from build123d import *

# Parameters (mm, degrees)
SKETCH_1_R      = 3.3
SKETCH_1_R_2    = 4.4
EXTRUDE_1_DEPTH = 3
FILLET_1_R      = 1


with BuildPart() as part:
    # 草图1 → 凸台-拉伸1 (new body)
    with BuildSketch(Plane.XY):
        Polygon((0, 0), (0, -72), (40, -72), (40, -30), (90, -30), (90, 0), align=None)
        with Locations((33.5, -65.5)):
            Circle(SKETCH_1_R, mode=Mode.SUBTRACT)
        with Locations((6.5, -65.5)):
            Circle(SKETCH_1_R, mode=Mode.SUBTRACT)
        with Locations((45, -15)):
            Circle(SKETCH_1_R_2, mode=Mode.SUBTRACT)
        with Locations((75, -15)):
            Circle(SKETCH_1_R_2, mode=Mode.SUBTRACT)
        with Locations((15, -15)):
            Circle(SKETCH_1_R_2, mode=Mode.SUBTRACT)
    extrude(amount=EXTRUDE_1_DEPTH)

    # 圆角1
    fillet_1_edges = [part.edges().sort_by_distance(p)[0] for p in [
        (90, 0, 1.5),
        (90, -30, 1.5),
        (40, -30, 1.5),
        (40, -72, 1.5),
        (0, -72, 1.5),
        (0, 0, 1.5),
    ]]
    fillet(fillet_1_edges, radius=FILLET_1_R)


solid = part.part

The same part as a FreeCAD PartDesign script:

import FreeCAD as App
import Part
import Sketcher

V = App.Vector


def edges_at(feature, points):
    """Names of the edges that pass closest to the given points."""
    edges = feature.Shape.Edges
    near = lambda p: min(range(len(edges)), key=lambda i: edges[i].distToShape(Part.Vertex(*p))[0])
    return sorted({f"Edge{near(p) + 1}" for p in points})

doc = App.newDocument("Part")
body = doc.addObject("PartDesign::Body", "Body")

sketch1 = body.newObject("Sketcher::SketchObject", "Sketch")
sketch1.AttachmentSupport = (doc.getObject("XY_Plane"), [""])
sketch1.MapMode = "FlatFace"
sketch1.addGeometry([
    Part.LineSegment(V(0, 0, 0), V(0, -72, 0)),
    Part.LineSegment(V(0, -72, 0), V(40, -72, 0)),
    Part.LineSegment(V(40, -72, 0), V(40, -30, 0)),
    Part.LineSegment(V(40, -30, 0), V(90, -30, 0)),
    Part.LineSegment(V(90, -30, 0), V(90, 0, 0)),
    Part.LineSegment(V(90, 0, 0), V(0, 0, 0)),
    Part.Circle(V(6.5, -65.5, 0), V(0, 0, 1), 3.3),
    Part.Circle(V(33.5, -65.5, 0), V(0, 0, 1), 3.3),
    Part.Circle(V(15, -15, 0), V(0, 0, 1), 4.4),
    Part.Circle(V(45, -15, 0), V(0, 0, 1), 4.4),
    Part.Circle(V(75, -15, 0), V(0, 0, 1), 4.4),
], False)
sketch1.addConstraint([
    Sketcher.Constraint("Coincident", 0, 2, 1, 1),
    Sketcher.Constraint("Coincident", 1, 2, 2, 1),
    Sketcher.Constraint("Coincident", 2, 2, 3, 1),
    Sketcher.Constraint("Coincident", 3, 2, 4, 1),
    Sketcher.Constraint("Coincident", 4, 2, 5, 1),
    Sketcher.Constraint("Coincident", 5, 2, 0, 1),
    Sketcher.Constraint("Vertical", 0),
    Sketcher.Constraint("Horizontal", 1),
    Sketcher.Constraint("Vertical", 2),
    Sketcher.Constraint("Horizontal", 3),
    Sketcher.Constraint("Vertical", 4),
    Sketcher.Constraint("Horizontal", 5),
    Sketcher.Constraint("Coincident", 5, 2, -1, 1),
    Sketcher.Constraint("Equal", 6, 7),
    Sketcher.Constraint("Equal", 8, 9),
    Sketcher.Constraint("Equal", 9, 10),
    Sketcher.Constraint("Horizontal", 6, 3, 7, 3),
    Sketcher.Constraint("Horizontal", 8, 3, 9, 3),
    Sketcher.Constraint("Horizontal", 9, 3, 10, 3),
    Sketcher.Constraint("Diameter", 6, 6.6),
    Sketcher.Constraint("Diameter", 8, 8.8),
    Sketcher.Constraint("DistanceX", 1, 1, 1, 2, 40.0),
    Sketcher.Constraint("DistanceX", 3, 1, 3, 2, 50.0),
    Sketcher.Constraint("DistanceY", 0, 2, 0, 1, 72.0),
    Sketcher.Constraint("DistanceY", 2, 1, 2, 2, 42.0),
    Sketcher.Constraint("DistanceX", -1, 1, 8, 3, 15.0),
    Sketcher.Constraint("DistanceY", 8, 3, -1, 1, 15.0),
    Sketcher.Constraint("DistanceX", -1, 1, 9, 3, 45.0),
    Sketcher.Constraint("DistanceX", -1, 1, 10, 3, 75.0),
    Sketcher.Constraint("DistanceX", 6, 3, 7, 3, 27.0),
    Sketcher.Constraint("DistanceX", -1, 1, 6, 3, 6.5),
    Sketcher.Constraint("DistanceY", 6, 3, -1, 1, 65.5),
])
pad1 = body.newObject("PartDesign::Pad", "Pad")
pad1.Profile = sketch1
pad1.Length = 3
doc.recompute()

fillet = body.newObject("PartDesign::Fillet", "Fillet")
fillet.Base = (pad1, edges_at(pad1, [
    (90, 0, 1.5),
    (90, -30, 1.5),
    (40, -30, 1.5),
    (40, -72, 1.5),
    (0, -72, 1.5),
    (0, 0, 1.5),
]))
fillet.Radius = 1

doc.recompute()
